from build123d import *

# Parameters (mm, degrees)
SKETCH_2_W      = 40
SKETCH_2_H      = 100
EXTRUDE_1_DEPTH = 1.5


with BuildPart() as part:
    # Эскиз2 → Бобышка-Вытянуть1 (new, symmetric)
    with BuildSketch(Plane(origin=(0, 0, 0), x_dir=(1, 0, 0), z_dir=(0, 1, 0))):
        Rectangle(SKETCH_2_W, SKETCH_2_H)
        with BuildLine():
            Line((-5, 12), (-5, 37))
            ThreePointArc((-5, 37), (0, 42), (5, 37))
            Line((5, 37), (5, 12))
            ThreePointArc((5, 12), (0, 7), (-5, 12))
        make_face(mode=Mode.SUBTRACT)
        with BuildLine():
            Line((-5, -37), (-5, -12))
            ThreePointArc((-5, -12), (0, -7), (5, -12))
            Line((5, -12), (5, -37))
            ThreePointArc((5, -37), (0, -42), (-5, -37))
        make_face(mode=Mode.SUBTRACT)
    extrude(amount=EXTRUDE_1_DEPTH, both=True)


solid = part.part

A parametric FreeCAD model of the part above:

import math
import FreeCAD as App
import Part
import Sketcher
Q = App.Units.Quantity

doc = App.newDocument("Part")
body = doc.addObject("PartDesign::Body", "Body")

# Sketch on XZ plane
sketch1 = body.newObject("Sketcher::SketchObject", "Sketch")
sketch1.AttachmentSupport = (doc.getObject("XZ_Plane"), [""])
sketch1.MapMode = "FlatFace"
sketch1.addGeometry(Part.LineSegment(App.Vector(-20, -50, 0), App.Vector(-20, 50, 0)), False)
sketch1.addGeometry(Part.LineSegment(App.Vector(-20, 50, 0), App.Vector(20, 50, 0)), False)
sketch1.addGeometry(Part.LineSegment(App.Vector(20, 50, 0), App.Vector(20, -50, 0)), False)
sketch1.addGeometry(Part.LineSegment(App.Vector(20, -50, 0), App.Vector(-20, -50, 0)), False)
sketch1.addGeometry(Part.ArcOfCircle(Part.Circle(App.Vector(0, 37, 0), App.Vector(0, 0, 1), 5), math.radians(0), math.radians(180)), False)
sketch1.addGeometry(Part.LineSegment(App.Vector(-5, 37, 0), App.Vector(-5, 12, 0)), False)
sketch1.addGeometry(Part.ArcOfCircle(Part.Circle(App.Vector(0, 12, 0), App.Vector(0, 0, 1), 5), math.radians(180), math.radians(360)), False)
sketch1.addGeometry(Part.LineSegment(App.Vector(5, 12, 0), App.Vector(5, 37, 0)), False)
sketch1.addGeometry(Part.ArcOfCircle(Part.Circle(App.Vector(0, -12, 0), App.Vector(0, 0, 1), 5), math.radians(0), math.radians(180)), False)
sketch1.addGeometry(Part.LineSegment(App.Vector(-5, -12, 0), App.Vector(-5, -37, 0)), False)
sketch1.addGeometry(Part.ArcOfCircle(Part.Circle(App.Vector(0, -37, 0), App.Vector(0, 0, 1), 5), math.radians(180), math.radians(360)), False)
sketch1.addGeometry(Part.LineSegment(App.Vector(5, -37, 0), App.Vector(5, -12, 0)), False)
sketch1.addConstraint(Sketcher.Constraint("Coincident", 0, 2, 1, 1))
sketch1.addConstraint(Sketcher.Constraint("Coincident", 1, 2, 2, 1))
sketch1.addConstraint(Sketcher.Constraint("Coincident", 2, 2, 3, 1))
sketch1.addConstraint(Sketcher.Constraint("Coincident", 3, 2, 0, 1))
sketch1.addConstraint(Sketcher.Constraint("Tangent", 4, 2, 5, 1))
sketch1.addConstraint(Sketcher.Constraint("Tangent", 5, 2, 6, 1))
sketch1.addConstraint(Sketcher.Constraint("Tangent", 6, 2, 7, 1))
sketch1.addConstraint(Sketcher.Constraint("Tangent", 7, 2, 4, 1))
sketch1.addConstraint(Sketcher.Constraint("Tangent", 8, 2, 9, 1))
sketch1.addConstraint(Sketcher.Constraint("Tangent", 9, 2, 10, 1))
sketch1.addConstraint(Sketcher.Constraint("Tangent", 10, 2, 11, 1))
sketch1.addConstraint(Sketcher.Constraint("Tangent", 11, 2, 8, 1))
sketch1.addConstraint(Sketcher.Constraint("Vertical", 0))
sketch1.addConstraint(Sketcher.Constraint("Horizontal", 1))
sketch1.addConstraint(Sketcher.Constraint("Vertical", 2))
sketch1.addConstraint(Sketcher.Constraint("Horizontal", 3))
sketch1.addConstraint(Sketcher.Constraint("Vertical", 5))
sketch1.addConstraint(Sketcher.Constraint("Vertical", 7))
sketch1.addConstraint(Sketcher.Constraint("Vertical", 9))
sketch1.addConstraint(Sketcher.Constraint("Vertical", 11))
sketch1.addConstraint(Sketcher.Constraint("Equal", 6, 8))
sketch1.addConstraint(Sketcher.Constraint("Symmetric", 6, 3, 8, 3, -1, 1))
sketch1.addConstraint(Sketcher.Constraint("Symmetric", 0, 2, 2, 2, -1, 1))
sketch1.addConstraint(Sketcher.Constraint("Symmetric", 4, 3, 10, 3, -1))
sketch1.addConstraint(Sketcher.Constraint("Radius", 4, Q("5 mm")))
sketch1.addConstraint(Sketcher.Constraint("DistanceX", 1, 1, 1, 2, Q("40 mm")))
sketch1.addConstraint(Sketcher.Constraint("DistanceY", 0, 1, 0, 2, Q("100 mm")))
sketch1.addConstraint(Sketcher.Constraint("DistanceY", 5, 2, 5, 1, Q("25 mm")))
sketch1.addConstraint(Sketcher.Constraint("DistanceY", -1, 1, 4, 3, Q("37 mm")))
pad1 = body.newObject("PartDesign::Pad", "Pad")
pad1.Profile = sketch1
pad1.Length = 3
pad1.Midplane = True

doc.recompute()
